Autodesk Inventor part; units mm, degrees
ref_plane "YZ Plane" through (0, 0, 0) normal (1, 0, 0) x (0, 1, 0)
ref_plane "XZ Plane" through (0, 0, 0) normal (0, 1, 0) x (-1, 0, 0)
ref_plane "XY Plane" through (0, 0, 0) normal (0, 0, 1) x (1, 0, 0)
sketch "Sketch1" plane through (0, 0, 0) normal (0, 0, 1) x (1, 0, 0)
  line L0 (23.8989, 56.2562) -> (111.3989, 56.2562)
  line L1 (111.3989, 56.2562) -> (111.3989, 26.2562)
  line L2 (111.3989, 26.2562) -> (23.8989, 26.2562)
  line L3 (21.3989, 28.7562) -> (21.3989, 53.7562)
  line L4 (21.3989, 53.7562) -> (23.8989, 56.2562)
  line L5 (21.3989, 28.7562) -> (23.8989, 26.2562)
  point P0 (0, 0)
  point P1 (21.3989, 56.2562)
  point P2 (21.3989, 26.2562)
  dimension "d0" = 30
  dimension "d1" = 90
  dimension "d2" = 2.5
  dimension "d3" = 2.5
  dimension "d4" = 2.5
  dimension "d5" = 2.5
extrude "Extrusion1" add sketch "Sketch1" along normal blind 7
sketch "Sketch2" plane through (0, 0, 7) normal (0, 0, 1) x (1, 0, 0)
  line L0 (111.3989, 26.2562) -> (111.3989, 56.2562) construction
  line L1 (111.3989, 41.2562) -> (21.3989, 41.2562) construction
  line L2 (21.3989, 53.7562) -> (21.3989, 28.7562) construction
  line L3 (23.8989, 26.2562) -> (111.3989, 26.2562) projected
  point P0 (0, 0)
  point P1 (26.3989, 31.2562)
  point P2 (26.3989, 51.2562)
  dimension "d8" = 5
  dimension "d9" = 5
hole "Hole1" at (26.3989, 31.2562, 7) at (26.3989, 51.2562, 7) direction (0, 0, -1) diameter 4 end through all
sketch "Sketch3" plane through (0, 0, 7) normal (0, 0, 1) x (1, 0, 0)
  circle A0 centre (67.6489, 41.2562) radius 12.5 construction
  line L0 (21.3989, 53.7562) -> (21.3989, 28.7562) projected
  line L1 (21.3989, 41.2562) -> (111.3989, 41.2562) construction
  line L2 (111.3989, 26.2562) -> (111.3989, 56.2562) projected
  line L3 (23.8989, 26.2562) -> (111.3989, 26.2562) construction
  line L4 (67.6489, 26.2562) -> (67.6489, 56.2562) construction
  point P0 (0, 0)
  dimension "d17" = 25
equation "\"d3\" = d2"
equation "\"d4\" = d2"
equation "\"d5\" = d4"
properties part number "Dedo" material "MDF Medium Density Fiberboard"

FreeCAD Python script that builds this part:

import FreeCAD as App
import Part
import Sketcher

doc = App.newDocument("Part")
body = doc.addObject("PartDesign::Body", "Body")

# Sketch on XY plane
sketch1 = body.newObject("Sketcher::SketchObject", "Sketch")
sketch1.AttachmentSupport = (doc.getObject("XY_Plane"), [""])
sketch1.MapMode = "FlatFace"
sketch1.addGeometry([
    Part.LineSegment(App.Vector(111.4, 56.3, 0), App.Vector(23.9, 56.3, 0)),  # 0
    Part.LineSegment(App.Vector(23.9, 56.3, 0), App.Vector(21.4, 53.8, 0)),  # 1
    Part.LineSegment(App.Vector(21.4, 53.8, 0), App.Vector(21.4, 28.8, 0)),  # 2
    Part.LineSegment(App.Vector(21.4, 28.8, 0), App.Vector(23.9, 26.3, 0)),  # 3
    Part.LineSegment(App.Vector(23.9, 26.3, 0), App.Vector(111.4, 26.3, 0)),  # 4
    Part.LineSegment(App.Vector(111.4, 26.3, 0), App.Vector(111.4, 56.3, 0)),  # 5
], False)
sketch1.addConstraint([
    Sketcher.Constraint("Coincident", 0, 2, 1, 1),
    Sketcher.Constraint("Coincident", 1, 2, 2, 1),
    Sketcher.Constraint("Coincident", 2, 2, 3, 1),
    Sketcher.Constraint("Coincident", 3, 2, 4, 1),
    Sketcher.Constraint("Coincident", 4, 2, 5, 1),
    Sketcher.Constraint("Coincident", 5, 2, 0, 1),
    Sketcher.Constraint("Horizontal", 0),
    Sketcher.Constraint("Vertical", 2),
    Sketcher.Constraint("Horizontal", 4),
    Sketcher.Constraint("Vertical", 5),
    Sketcher.Constraint("Perpendicular", 1, 3),
    Sketcher.Constraint("Vertical", 0, 2, 3, 2),
    Sketcher.Constraint("Equal", 1, 3),
    Sketcher.Constraint("DistanceY", 5, 1, 5, 2, 30.0),
    Sketcher.Constraint("DistanceX", 2, 2, 4, 2, 90.0),
    Sketcher.Constraint("DistanceX", 1, 2, 0, 2, 2.5),
    Sketcher.Constraint("DistanceX", -1, 1, 0, 2, 23.899),
    Sketcher.Constraint("DistanceY", -1, 1, 0, 2, 56.2562),
])
pad1 = body.newObject("PartDesign::Pad", "Pad")
pad1.Profile = sketch1
pad1.Length = 7

# Sketch on XY plane
sketch2 = body.newObject("Sketcher::SketchObject", "Sketch001")
sketch2.AttachmentSupport = (doc.getObject("XY_Plane"), [""])
sketch2.MapMode = "FlatFace"
sketch2.AttachmentOffset = App.Placement(App.Vector(0, 0, 7), App.Rotation())
sketch2.addGeometry([
    Part.Circle(App.Vector(26.4, 31.3, 0), App.Vector(0, 0, 1), 2),
    Part.Circle(App.Vector(26.4, 51.3, 0), App.Vector(0, 0, 1), 2),
], False)
sketch2.addConstraint([
    Sketcher.Constraint("Equal", 0, 1),
    Sketcher.Constraint("Vertical", 0, 3, 1, 3),
    Sketcher.Constraint("Diameter", 0, 4.0),
    Sketcher.Constraint("DistanceY", 0, 3, 1, 3, 20.0),
    Sketcher.Constraint("DistanceX", -1, 1, 0, 3, 26.399),
    Sketcher.Constraint("DistanceY", -1, 1, 0, 3, 31.2562),
])
doc.recompute()
hole = body.newObject("PartDesign::Hole", "Hole")
hole.Profile = sketch2
hole.ThreadType = "None"
hole.Diameter = 4
hole.DepthType = "ThroughAll"

doc.recompute()
